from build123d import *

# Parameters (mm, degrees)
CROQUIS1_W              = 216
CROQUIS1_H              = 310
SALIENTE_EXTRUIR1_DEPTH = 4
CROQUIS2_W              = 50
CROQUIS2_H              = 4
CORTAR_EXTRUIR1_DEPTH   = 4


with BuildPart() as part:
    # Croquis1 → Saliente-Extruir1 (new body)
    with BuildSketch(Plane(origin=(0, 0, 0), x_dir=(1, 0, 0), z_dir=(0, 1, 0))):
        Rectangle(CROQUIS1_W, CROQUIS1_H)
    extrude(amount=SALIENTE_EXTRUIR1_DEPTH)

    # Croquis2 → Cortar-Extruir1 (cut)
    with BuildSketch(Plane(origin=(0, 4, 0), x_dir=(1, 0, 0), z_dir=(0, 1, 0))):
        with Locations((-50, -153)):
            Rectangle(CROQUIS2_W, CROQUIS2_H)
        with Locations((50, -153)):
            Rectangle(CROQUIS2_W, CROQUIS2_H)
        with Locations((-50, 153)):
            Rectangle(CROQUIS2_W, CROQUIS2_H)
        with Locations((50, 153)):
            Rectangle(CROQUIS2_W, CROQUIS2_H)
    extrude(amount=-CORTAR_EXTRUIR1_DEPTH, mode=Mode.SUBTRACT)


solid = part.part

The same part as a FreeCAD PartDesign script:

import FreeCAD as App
import Part
import Sketcher

doc = App.newDocument("Part")
params = doc.addObject("Spreadsheet::Sheet", "Params")
for row, (alias, value) in enumerate([
    ("sketch1_width", "216 mm"),
    ("sketch1_height", "310 mm"),
    ("pad1_length", "4 mm"),
    ("sketch2_width", "50 mm"),
    ("sketch2_height", "4 mm"),
    ("pocket1_length", "4 mm"),
], start=1):
    params.set(f"A{row}", alias)
    params.set(f"B{row}", "=" + value)
    params.setAlias(f"B{row}", alias)

body = doc.addObject("PartDesign::Body", "Body")

sketch1 = body.newObject("Sketcher::SketchObject", "Sketch")
sketch1.AttachmentSupport = (doc.getObject("XZ_Plane"), [""])
sketch1.MapMode = "FlatFace"
sketch1.addGeometry([
    Part.LineSegment(App.Vector(-108, -155, 0), App.Vector(-108, 155, 0)),
    Part.LineSegment(App.Vector(-108, 155, 0), App.Vector(108, 155, 0)),
    Part.LineSegment(App.Vector(108, 155, 0), App.Vector(108, -155, 0)),
    Part.LineSegment(App.Vector(108, -155, 0), App.Vector(-108, -155, 0)),
], False)
sketch1.addConstraint([
    Sketcher.Constraint("Coincident", 0, 2, 1, 1),
    Sketcher.Constraint("Coincident", 1, 2, 2, 1),
    Sketcher.Constraint("Coincident", 2, 2, 3, 1),
    Sketcher.Constraint("Coincident", 3, 2, 0, 1),
    Sketcher.Constraint("Vertical", 0),
    Sketcher.Constraint("Horizontal", 1),
    Sketcher.Constraint("Vertical", 2),
    Sketcher.Constraint("Horizontal", 3),
    Sketcher.Constraint("Symmetric", 0, 2, 2, 2, -1, 1),
    Sketcher.Constraint("DistanceX", 1, 1, 1, 2, 216.0),
    Sketcher.Constraint("DistanceY", 0, 1, 0, 2, 310.0),
])
sketch1.setExpression("Constraints[9]", "Params.sketch1_width")
sketch1.setExpression("Constraints[10]", "Params.sketch1_height")
pad1 = body.newObject("PartDesign::Pad", "Pad")
pad1.Profile = sketch1
pad1.setExpression("Length", "Params.pad1_length")
pad1.Reversed = True

sketch2 = body.newObject("Sketcher::SketchObject", "Sketch001")
sketch2.AttachmentSupport = (doc.getObject("XZ_Plane"), [""])
sketch2.MapMode = "FlatFace"
sketch2.AttachmentOffset = App.Placement(App.Vector(0, 0, -4), App.Rotation())
sketch2.addGeometry([
    Part.LineSegment(App.Vector(-75, 151, 0), App.Vector(-75, 155, 0)),
    Part.LineSegment(App.Vector(-75, 155, 0), App.Vector(-25, 155, 0)),
    Part.LineSegment(App.Vector(-25, 155, 0), App.Vector(-25, 151, 0)),
    Part.LineSegment(App.Vector(-25, 151, 0), App.Vector(-75, 151, 0)),
    Part.LineSegment(App.Vector(25, 151, 0), App.Vector(25, 155, 0)),
    Part.LineSegment(App.Vector(25, 155, 0), App.Vector(75, 155, 0)),
    Part.LineSegment(App.Vector(75, 155, 0), App.Vector(75, 151, 0)),
    Part.LineSegment(App.Vector(75, 151, 0), App.Vector(25, 151, 0)),
    Part.LineSegment(App.Vector(-75, -155, 0), App.Vector(-75, -151, 0)),
    Part.LineSegment(App.Vector(-75, -151, 0), App.Vector(-25, -151, 0)),
    Part.LineSegment(App.Vector(-25, -151, 0), App.Vector(-25, -155, 0)),
    Part.LineSegment(App.Vector(-25, -155, 0), App.Vector(-75, -155, 0)),
    Part.LineSegment(App.Vector(25, -155, 0), App.Vector(25, -151, 0)),
    Part.LineSegment(App.Vector(25, -151, 0), App.Vector(75, -151, 0)),
    Part.LineSegment(App.Vector(75, -151, 0), App.Vector(75, -155, 0)),
    Part.LineSegment(App.Vector(75, -155, 0), App.Vector(25, -155, 0)),
], False)
sketch2.addConstraint([
    Sketcher.Constraint("Coincident", 0, 2, 1, 1),
    Sketcher.Constraint("Coincident", 1, 2, 2, 1),
    Sketcher.Constraint("Coincident", 2, 2, 3, 1),
    Sketcher.Constraint("Coincident", 3, 2, 0, 1),
    Sketcher.Constraint("Coincident", 4, 2, 5, 1),
    Sketcher.Constraint("Coincident", 5, 2, 6, 1),
    Sketcher.Constraint("Coincident", 6, 2, 7, 1),
    Sketcher.Constraint("Coincident", 7, 2, 4, 1),
    Sketcher.Constraint("Coincident", 8, 2, 9, 1),
    Sketcher.Constraint("Coincident", 9, 2, 10, 1),
    Sketcher.Constraint("Coincident", 10, 2, 11, 1),
    Sketcher.Constraint("Coincident", 11, 2, 8, 1),
    Sketcher.Constraint("Coincident", 12, 2, 13, 1),
    Sketcher.Constraint("Coincident", 13, 2, 14, 1),
    Sketcher.Constraint("Coincident", 14, 2, 15, 1),
    Sketcher.Constraint("Coincident", 15, 2, 12, 1),
    Sketcher.Constraint("Vertical", 0),
    Sketcher.Constraint("Horizontal", 1),
    Sketcher.Constraint("Vertical", 2),
    Sketcher.Constraint("Horizontal", 3),
    Sketcher.Constraint("Vertical", 4),
    Sketcher.Constraint("Horizontal", 5),
    Sketcher.Constraint("Vertical", 6),
    Sketcher.Constraint("Horizontal", 7),
    Sketcher.Constraint("Vertical", 8),
    Sketcher.Constraint("Horizontal", 9),
    Sketcher.Constraint("Vertical", 10),
    Sketcher.Constraint("Horizontal", 11),
    Sketcher.Constraint("Vertical", 12),
    Sketcher.Constraint("Horizontal", 13),
    Sketcher.Constraint("Vertical", 14),
    Sketcher.Constraint("Horizontal", 15),
    Sketcher.Constraint("Symmetric", 6, 2, 8, 2, -1, 1),
    Sketcher.Constraint("Symmetric", 4, 2, 10, 2, -1, 1),
    Sketcher.Constraint("Symmetric", 2, 2, 12, 2, -1, 1),
    Sketcher.Constraint("Symmetric", 0, 2, 14, 2, -1, 1),
    Sketcher.Constraint("Symmetric", 1, 2, 4, 2, -2),
    Sketcher.Constraint("Symmetric", 3, 2, 6, 2, -2),
    Sketcher.Constraint("DistanceX", 1, 1, 1, 2, 50.0),
    Sketcher.Constraint("DistanceY", 0, 1, 0, 2, 4.0),
    Sketcher.Constraint("DistanceX", 0, 2, -1, 1, 75.0),
    Sketcher.Constraint("DistanceY", -1, 1, 0, 2, 155.0),
])
sketch2.setExpression("Constraints[38]", "Params.sketch2_width")
sketch2.setExpression("Constraints[39]", "Params.sketch2_height")
pocket1 = body.newObject("PartDesign::Pocket", "Pocket")
pocket1.Profile = sketch2
pocket1.setExpression("Length", "Params.pocket1_length")
pocket1.Reversed = True

doc.recompute()
